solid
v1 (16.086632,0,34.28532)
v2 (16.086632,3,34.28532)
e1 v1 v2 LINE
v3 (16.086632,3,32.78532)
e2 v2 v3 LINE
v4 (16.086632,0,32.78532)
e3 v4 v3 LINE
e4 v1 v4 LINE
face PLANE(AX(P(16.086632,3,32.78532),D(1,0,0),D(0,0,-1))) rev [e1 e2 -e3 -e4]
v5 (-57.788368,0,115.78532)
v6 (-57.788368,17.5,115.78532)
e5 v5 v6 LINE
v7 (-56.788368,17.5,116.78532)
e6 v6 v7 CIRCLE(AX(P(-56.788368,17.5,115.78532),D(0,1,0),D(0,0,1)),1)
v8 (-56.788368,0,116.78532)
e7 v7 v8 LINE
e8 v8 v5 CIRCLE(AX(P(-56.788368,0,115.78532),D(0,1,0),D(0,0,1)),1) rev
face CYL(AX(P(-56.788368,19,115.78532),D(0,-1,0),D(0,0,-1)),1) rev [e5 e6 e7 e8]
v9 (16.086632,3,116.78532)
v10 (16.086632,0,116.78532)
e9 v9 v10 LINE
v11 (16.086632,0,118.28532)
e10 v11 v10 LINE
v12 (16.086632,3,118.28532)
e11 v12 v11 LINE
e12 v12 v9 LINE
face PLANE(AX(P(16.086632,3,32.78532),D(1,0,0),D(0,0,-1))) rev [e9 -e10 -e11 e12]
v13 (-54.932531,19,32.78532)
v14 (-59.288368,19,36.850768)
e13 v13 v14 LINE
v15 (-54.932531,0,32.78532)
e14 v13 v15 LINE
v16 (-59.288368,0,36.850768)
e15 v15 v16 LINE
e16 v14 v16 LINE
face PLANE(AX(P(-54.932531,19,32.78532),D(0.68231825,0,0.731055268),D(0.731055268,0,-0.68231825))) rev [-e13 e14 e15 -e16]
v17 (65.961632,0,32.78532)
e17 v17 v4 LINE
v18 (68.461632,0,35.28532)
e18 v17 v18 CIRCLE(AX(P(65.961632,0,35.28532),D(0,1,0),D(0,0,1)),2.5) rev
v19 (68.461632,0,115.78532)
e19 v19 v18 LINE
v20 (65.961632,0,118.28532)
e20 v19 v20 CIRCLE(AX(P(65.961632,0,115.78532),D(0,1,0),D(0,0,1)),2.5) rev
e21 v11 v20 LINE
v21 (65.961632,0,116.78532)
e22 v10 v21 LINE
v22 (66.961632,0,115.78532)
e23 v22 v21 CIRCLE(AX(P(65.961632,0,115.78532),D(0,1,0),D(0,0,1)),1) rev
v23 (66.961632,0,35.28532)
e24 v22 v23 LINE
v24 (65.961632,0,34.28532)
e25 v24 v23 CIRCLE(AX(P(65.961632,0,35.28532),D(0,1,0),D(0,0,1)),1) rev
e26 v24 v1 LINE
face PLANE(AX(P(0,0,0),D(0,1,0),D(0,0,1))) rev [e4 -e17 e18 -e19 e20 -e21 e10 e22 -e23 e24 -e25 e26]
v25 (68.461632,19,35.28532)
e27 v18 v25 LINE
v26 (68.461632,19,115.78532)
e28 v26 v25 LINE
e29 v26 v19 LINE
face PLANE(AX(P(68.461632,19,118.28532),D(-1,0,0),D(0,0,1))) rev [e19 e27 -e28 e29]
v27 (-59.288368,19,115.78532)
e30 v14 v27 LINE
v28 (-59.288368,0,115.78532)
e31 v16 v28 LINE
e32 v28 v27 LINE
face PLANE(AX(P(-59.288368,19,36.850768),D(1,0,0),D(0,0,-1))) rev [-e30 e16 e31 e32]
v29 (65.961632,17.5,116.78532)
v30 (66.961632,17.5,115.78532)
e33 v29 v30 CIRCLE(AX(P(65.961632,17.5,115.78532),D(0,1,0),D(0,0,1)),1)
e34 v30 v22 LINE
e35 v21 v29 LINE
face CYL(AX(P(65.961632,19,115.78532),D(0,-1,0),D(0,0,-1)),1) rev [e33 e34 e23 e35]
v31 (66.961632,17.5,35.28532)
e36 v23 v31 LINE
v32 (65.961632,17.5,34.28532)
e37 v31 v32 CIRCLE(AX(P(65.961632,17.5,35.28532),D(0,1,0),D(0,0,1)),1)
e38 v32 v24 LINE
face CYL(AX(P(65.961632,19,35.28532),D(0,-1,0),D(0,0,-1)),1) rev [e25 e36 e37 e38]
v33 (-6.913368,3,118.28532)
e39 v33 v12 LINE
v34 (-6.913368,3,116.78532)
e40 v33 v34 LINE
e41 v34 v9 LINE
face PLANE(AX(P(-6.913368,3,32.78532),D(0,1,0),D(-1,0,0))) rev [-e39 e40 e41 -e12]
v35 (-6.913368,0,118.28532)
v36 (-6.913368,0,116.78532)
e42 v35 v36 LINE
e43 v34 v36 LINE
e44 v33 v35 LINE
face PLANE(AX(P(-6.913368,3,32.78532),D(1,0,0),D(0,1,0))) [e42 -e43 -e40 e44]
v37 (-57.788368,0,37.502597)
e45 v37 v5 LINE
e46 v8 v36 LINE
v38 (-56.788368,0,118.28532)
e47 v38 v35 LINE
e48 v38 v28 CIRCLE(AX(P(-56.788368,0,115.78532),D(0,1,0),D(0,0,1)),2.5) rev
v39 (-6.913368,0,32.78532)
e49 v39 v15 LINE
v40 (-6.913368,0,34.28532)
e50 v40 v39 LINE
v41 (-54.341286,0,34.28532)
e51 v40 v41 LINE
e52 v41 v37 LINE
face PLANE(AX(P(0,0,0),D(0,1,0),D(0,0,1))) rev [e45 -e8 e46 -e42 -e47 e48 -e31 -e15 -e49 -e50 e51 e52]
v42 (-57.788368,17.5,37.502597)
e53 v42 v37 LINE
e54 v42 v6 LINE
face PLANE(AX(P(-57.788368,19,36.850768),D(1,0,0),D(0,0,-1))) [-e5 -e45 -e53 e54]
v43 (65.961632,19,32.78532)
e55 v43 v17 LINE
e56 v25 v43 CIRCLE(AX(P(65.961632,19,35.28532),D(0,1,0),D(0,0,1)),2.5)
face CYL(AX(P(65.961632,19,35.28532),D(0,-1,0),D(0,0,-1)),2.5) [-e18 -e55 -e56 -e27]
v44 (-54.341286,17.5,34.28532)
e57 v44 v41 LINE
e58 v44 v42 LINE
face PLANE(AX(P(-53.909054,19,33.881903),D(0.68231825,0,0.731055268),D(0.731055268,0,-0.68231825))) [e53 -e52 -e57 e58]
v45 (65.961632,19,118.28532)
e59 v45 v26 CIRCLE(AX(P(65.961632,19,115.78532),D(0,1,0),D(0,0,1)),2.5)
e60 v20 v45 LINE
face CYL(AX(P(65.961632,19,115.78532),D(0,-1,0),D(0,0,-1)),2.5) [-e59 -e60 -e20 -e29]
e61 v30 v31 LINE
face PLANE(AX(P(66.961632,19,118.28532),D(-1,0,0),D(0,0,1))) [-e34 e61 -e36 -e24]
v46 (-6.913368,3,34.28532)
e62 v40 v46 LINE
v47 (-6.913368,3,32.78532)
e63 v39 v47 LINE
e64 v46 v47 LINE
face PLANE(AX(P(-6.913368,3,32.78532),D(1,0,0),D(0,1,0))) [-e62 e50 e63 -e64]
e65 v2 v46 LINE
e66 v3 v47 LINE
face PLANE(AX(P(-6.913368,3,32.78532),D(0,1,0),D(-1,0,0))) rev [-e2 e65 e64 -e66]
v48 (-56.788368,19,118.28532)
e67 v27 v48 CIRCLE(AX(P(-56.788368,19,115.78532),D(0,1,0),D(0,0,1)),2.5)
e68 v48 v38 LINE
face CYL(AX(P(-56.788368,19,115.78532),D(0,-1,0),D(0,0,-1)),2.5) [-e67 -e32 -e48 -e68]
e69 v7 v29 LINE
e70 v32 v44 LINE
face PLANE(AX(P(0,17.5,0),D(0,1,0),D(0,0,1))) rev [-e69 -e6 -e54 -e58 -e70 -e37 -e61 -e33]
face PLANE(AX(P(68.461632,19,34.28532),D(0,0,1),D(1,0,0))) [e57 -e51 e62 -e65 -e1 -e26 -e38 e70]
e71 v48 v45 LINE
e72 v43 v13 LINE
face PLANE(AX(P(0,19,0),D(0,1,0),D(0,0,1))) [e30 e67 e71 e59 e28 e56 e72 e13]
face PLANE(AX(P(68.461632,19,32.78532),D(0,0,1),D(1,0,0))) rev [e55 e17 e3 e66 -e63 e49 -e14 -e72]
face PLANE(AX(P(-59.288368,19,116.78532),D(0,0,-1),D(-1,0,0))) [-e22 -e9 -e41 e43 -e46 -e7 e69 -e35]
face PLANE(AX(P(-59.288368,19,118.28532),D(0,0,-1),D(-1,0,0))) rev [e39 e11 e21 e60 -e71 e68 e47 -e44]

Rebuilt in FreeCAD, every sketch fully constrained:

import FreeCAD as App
import Part
import Sketcher

V = App.Vector
Q = App.Units.Quantity


def edges_at(feature, points):
    """Names of the edges that pass closest to the given points."""
    edges = feature.Shape.Edges
    near = lambda p: min(range(len(edges)), key=lambda i: edges[i].distToShape(Part.Vertex(*p))[0])
    return sorted({f"Edge{near(p) + 1}" for p in points})


def faces_at(feature, points):
    """Names of the faces that lie closest to the given points."""
    faces = feature.Shape.Faces
    near = lambda p: min(range(len(faces)), key=lambda i: faces[i].distToShape(Part.Vertex(*p))[0])
    return sorted({f"Face{near(p) + 1}" for p in points})

doc = App.newDocument("Part")
body = doc.addObject("PartDesign::Body", "Body")

sketch1 = body.newObject("Sketcher::SketchObject", "Sketch")
sketch1.AttachmentSupport = (doc.getObject("XZ_Plane"), [""])
sketch1.MapMode = "FlatFace"
sketch1.addGeometry([
    Part.LineSegment(V(68, 33, 0), V(-55, 33, 0)),
    Part.LineSegment(V(-55, 33, 0), V(-59, 37, 0)),
    Part.LineSegment(V(-59, 37, 0), V(-59, 118, 0)),
    Part.LineSegment(V(-59, 118, 0), V(68, 118, 0)),
    Part.LineSegment(V(68, 118, 0), V(68, 33, 0)),
], False)
sketch1.addConstraint([
    Sketcher.Constraint("Coincident", 0, 2, 1, 1),
    Sketcher.Constraint("Coincident", 1, 2, 2, 1),
    Sketcher.Constraint("Coincident", 2, 2, 3, 1),
    Sketcher.Constraint("Coincident", 3, 2, 4, 1),
    Sketcher.Constraint("Coincident", 4, 2, 0, 1),
    Sketcher.Constraint("Horizontal", 0),
    Sketcher.Constraint("Vertical", 2),
    Sketcher.Constraint("Horizontal", 3),
    Sketcher.Constraint("Vertical", 4),
    Sketcher.Constraint("DistanceY", 4, 2, 4, 1, Q("85.5 mm")),
    Sketcher.Constraint("DistanceX", 3, 1, 3, 2, Q("127.75 mm")),
    Sketcher.Constraint("DistanceX", 0, 2, 0, 1, Q("123.394163 mm")),
    Sketcher.Constraint("DistanceY", 2, 1, 2, 2, Q("81.434552 mm")),
    Sketcher.Constraint("DistanceX", 0, 2, -1, 1, Q("54.932531 mm")),
    Sketcher.Constraint("DistanceY", -1, 1, 0, 2, Q("32.78532 mm")),
])
pad1 = body.newObject("PartDesign::Pad", "Pad")
pad1.Profile = sketch1
pad1.Length = 19
pad1.Reversed = True
doc.recompute()

fillet = body.newObject("PartDesign::Fillet", "Fillet")
fillet.Base = (pad1, edges_at(pad1, [(68.462, 9.5, 32.785), (68.462, 9.5, 118.285), (-59.288, 9.5, 118.285)]))
fillet.Radius = 2.5
doc.recompute()

thickness = body.newObject("PartDesign::Thickness", "Thickness")
thickness.Base = (fillet, faces_at(fillet, [(4.587, 0, 75.535)]))
thickness.Value = 1.5
thickness.Reversed = True
thickness.Join = "Intersection"

sketch2 = body.newObject("Sketcher::SketchObject", "Sketch001")
sketch2.AttachmentSupport = (doc.getObject("XY_Plane"), [""])
sketch2.MapMode = "FlatFace"
sketch2.addGeometry([
    Part.LineSegment(V(-6.9, 3, 0), V(-6.9, 0, 0)),
    Part.LineSegment(V(-6.9, 0, 0), V(16.1, 0, 0)),
    Part.LineSegment(V(16.1, 0, 0), V(16.1, 3, 0)),
    Part.LineSegment(V(16.1, 3, 0), V(-6.9, 3, 0)),
], False)
sketch2.addConstraint([
    Sketcher.Constraint("Coincident", 0, 2, 1, 1),
    Sketcher.Constraint("Coincident", 1, 2, 2, 1),
    Sketcher.Constraint("Coincident", 2, 2, 3, 1),
    Sketcher.Constraint("Coincident", 3, 2, 0, 1),
    Sketcher.Constraint("Vertical", 0),
    Sketcher.Constraint("Horizontal", 1),
    Sketcher.Constraint("Vertical", 2),
    Sketcher.Constraint("Horizontal", 3),
    Sketcher.Constraint("PointOnObject", 0, 2, -1),
    Sketcher.Constraint("DistanceX", 1, 1, 1, 2, Q("23 mm")),
    Sketcher.Constraint("DistanceY", 0, 2, 0, 1, Q("3 mm")),
    Sketcher.Constraint("DistanceX", 0, 2, -1, 1, Q("6.913368 mm")),
])
pocket1 = body.newObject("PartDesign::Pocket", "Pocket")
pocket1.Profile = sketch2
pocket1.Type = "ThroughAll"
pocket1.Midplane = True

doc.recompute()
